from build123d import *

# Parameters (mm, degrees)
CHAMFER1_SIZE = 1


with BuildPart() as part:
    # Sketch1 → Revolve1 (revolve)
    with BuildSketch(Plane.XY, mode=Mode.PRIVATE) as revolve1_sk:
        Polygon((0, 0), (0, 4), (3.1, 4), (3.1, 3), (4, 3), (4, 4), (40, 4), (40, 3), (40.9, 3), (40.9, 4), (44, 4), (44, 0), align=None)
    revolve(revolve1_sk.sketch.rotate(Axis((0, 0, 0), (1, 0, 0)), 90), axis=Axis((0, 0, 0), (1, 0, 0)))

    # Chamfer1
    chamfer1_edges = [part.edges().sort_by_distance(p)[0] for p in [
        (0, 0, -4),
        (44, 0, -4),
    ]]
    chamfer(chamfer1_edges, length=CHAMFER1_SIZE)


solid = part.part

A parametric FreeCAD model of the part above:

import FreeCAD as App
import Part
import Sketcher
from FreeCAD import Vector


def edges_at(feature, points):
    """Names of the edges that pass closest to the given points."""
    edges = feature.Shape.Edges
    near = lambda p: min(range(len(edges)), key=lambda i: edges[i].distToShape(Part.Vertex(*p))[0])
    return sorted({f"Edge{near(p) + 1}" for p in points})


def add_polygon(sketch, points):
    """Adds a closed chain of lines whose ends are joined by coincident constraints."""
    first, n = sketch.GeometryCount, len(points)
    for a, b in zip(points, points[1:] + points[:1]):
        sketch.addGeometry(Part.LineSegment(App.Vector(*a, 0), App.Vector(*b, 0)), False)
    for i in range(n):
        sketch.addConstraint(Sketcher.Constraint("Coincident", first + i, 2, first + (i + 1) % n, 1))

doc = App.newDocument("Part")
body = doc.addObject("PartDesign::Body", "Body")

# Sketch on XY plane
sketch1 = doc.addObject("Sketcher::SketchObject", "Sketch")
body.addObject(sketch1)
sketch1.AttachmentSupport = (doc.XY_Plane, [""])
sketch1.MapMode = "FlatFace"
add_polygon(sketch1, [(0, 4), (0, 0), (44, 0), (44, 4), (40.9, 4), (40.9, 3), (40, 3), (40, 4), (4, 4), (4, 3), (3.1, 3), (3.1, 4)])  # lines 0-11
sketch1.addConstraint(Sketcher.Constraint("Vertical", 0))
sketch1.addConstraint(Sketcher.Constraint("Horizontal", 1))
sketch1.addConstraint(Sketcher.Constraint("Vertical", 2))
sketch1.addConstraint(Sketcher.Constraint("Horizontal", 3))
sketch1.addConstraint(Sketcher.Constraint("Vertical", 4))
sketch1.addConstraint(Sketcher.Constraint("Horizontal", 5))
sketch1.addConstraint(Sketcher.Constraint("Vertical", 6))
sketch1.addConstraint(Sketcher.Constraint("Horizontal", 7))
sketch1.addConstraint(Sketcher.Constraint("Vertical", 8))
sketch1.addConstraint(Sketcher.Constraint("Horizontal", 9))
sketch1.addConstraint(Sketcher.Constraint("Vertical", 10))
sketch1.addConstraint(Sketcher.Constraint("Horizontal", 11))
sketch1.addConstraint(Sketcher.Constraint("Coincident", 0, 2, -1, 1))
sketch1.addConstraint(Sketcher.Constraint("Horizontal", 3, 2, 6, 2))
sketch1.addConstraint(Sketcher.Constraint("Horizontal", 5, 2, 8, 2))
sketch1.addConstraint(Sketcher.Constraint("Horizontal", 7, 2, 10, 2))
sketch1.addConstraint(Sketcher.Constraint("Equal", 5, 9))
sketch1.addConstraint(Sketcher.Constraint("Equal", 3, 11))
sketch1.addConstraint(Sketcher.Constraint("DistanceX", 1, 1, 1, 2, 44.0))
sketch1.addConstraint(Sketcher.Constraint("DistanceX", 7, 2, 7, 1, 36.0))
sketch1.addConstraint(Sketcher.Constraint("DistanceY", 0, 2, 0, 1, 4.0))
sketch1.addConstraint(Sketcher.Constraint("DistanceY", 4, 2, 4, 1, 1.0))
sketch1.addConstraint(Sketcher.Constraint("DistanceX", 3, 2, 3, 1, 3.1))
revolution = doc.addObject("PartDesign::Revolution", "Revolution")
body.addObject(revolution)
revolution.Profile = sketch1
revolution.ReferenceAxis = (sketch1, ["H_Axis"])
revolution.Angle = 360
doc.recompute()

chamfer = doc.addObject("PartDesign::Chamfer", "Chamfer")
body.addObject(chamfer)
chamfer.Base = (revolution, edges_at(revolution, [(0, 0, -4), (44, 0, -4)]))
chamfer.Size = 1

doc.recompute()
